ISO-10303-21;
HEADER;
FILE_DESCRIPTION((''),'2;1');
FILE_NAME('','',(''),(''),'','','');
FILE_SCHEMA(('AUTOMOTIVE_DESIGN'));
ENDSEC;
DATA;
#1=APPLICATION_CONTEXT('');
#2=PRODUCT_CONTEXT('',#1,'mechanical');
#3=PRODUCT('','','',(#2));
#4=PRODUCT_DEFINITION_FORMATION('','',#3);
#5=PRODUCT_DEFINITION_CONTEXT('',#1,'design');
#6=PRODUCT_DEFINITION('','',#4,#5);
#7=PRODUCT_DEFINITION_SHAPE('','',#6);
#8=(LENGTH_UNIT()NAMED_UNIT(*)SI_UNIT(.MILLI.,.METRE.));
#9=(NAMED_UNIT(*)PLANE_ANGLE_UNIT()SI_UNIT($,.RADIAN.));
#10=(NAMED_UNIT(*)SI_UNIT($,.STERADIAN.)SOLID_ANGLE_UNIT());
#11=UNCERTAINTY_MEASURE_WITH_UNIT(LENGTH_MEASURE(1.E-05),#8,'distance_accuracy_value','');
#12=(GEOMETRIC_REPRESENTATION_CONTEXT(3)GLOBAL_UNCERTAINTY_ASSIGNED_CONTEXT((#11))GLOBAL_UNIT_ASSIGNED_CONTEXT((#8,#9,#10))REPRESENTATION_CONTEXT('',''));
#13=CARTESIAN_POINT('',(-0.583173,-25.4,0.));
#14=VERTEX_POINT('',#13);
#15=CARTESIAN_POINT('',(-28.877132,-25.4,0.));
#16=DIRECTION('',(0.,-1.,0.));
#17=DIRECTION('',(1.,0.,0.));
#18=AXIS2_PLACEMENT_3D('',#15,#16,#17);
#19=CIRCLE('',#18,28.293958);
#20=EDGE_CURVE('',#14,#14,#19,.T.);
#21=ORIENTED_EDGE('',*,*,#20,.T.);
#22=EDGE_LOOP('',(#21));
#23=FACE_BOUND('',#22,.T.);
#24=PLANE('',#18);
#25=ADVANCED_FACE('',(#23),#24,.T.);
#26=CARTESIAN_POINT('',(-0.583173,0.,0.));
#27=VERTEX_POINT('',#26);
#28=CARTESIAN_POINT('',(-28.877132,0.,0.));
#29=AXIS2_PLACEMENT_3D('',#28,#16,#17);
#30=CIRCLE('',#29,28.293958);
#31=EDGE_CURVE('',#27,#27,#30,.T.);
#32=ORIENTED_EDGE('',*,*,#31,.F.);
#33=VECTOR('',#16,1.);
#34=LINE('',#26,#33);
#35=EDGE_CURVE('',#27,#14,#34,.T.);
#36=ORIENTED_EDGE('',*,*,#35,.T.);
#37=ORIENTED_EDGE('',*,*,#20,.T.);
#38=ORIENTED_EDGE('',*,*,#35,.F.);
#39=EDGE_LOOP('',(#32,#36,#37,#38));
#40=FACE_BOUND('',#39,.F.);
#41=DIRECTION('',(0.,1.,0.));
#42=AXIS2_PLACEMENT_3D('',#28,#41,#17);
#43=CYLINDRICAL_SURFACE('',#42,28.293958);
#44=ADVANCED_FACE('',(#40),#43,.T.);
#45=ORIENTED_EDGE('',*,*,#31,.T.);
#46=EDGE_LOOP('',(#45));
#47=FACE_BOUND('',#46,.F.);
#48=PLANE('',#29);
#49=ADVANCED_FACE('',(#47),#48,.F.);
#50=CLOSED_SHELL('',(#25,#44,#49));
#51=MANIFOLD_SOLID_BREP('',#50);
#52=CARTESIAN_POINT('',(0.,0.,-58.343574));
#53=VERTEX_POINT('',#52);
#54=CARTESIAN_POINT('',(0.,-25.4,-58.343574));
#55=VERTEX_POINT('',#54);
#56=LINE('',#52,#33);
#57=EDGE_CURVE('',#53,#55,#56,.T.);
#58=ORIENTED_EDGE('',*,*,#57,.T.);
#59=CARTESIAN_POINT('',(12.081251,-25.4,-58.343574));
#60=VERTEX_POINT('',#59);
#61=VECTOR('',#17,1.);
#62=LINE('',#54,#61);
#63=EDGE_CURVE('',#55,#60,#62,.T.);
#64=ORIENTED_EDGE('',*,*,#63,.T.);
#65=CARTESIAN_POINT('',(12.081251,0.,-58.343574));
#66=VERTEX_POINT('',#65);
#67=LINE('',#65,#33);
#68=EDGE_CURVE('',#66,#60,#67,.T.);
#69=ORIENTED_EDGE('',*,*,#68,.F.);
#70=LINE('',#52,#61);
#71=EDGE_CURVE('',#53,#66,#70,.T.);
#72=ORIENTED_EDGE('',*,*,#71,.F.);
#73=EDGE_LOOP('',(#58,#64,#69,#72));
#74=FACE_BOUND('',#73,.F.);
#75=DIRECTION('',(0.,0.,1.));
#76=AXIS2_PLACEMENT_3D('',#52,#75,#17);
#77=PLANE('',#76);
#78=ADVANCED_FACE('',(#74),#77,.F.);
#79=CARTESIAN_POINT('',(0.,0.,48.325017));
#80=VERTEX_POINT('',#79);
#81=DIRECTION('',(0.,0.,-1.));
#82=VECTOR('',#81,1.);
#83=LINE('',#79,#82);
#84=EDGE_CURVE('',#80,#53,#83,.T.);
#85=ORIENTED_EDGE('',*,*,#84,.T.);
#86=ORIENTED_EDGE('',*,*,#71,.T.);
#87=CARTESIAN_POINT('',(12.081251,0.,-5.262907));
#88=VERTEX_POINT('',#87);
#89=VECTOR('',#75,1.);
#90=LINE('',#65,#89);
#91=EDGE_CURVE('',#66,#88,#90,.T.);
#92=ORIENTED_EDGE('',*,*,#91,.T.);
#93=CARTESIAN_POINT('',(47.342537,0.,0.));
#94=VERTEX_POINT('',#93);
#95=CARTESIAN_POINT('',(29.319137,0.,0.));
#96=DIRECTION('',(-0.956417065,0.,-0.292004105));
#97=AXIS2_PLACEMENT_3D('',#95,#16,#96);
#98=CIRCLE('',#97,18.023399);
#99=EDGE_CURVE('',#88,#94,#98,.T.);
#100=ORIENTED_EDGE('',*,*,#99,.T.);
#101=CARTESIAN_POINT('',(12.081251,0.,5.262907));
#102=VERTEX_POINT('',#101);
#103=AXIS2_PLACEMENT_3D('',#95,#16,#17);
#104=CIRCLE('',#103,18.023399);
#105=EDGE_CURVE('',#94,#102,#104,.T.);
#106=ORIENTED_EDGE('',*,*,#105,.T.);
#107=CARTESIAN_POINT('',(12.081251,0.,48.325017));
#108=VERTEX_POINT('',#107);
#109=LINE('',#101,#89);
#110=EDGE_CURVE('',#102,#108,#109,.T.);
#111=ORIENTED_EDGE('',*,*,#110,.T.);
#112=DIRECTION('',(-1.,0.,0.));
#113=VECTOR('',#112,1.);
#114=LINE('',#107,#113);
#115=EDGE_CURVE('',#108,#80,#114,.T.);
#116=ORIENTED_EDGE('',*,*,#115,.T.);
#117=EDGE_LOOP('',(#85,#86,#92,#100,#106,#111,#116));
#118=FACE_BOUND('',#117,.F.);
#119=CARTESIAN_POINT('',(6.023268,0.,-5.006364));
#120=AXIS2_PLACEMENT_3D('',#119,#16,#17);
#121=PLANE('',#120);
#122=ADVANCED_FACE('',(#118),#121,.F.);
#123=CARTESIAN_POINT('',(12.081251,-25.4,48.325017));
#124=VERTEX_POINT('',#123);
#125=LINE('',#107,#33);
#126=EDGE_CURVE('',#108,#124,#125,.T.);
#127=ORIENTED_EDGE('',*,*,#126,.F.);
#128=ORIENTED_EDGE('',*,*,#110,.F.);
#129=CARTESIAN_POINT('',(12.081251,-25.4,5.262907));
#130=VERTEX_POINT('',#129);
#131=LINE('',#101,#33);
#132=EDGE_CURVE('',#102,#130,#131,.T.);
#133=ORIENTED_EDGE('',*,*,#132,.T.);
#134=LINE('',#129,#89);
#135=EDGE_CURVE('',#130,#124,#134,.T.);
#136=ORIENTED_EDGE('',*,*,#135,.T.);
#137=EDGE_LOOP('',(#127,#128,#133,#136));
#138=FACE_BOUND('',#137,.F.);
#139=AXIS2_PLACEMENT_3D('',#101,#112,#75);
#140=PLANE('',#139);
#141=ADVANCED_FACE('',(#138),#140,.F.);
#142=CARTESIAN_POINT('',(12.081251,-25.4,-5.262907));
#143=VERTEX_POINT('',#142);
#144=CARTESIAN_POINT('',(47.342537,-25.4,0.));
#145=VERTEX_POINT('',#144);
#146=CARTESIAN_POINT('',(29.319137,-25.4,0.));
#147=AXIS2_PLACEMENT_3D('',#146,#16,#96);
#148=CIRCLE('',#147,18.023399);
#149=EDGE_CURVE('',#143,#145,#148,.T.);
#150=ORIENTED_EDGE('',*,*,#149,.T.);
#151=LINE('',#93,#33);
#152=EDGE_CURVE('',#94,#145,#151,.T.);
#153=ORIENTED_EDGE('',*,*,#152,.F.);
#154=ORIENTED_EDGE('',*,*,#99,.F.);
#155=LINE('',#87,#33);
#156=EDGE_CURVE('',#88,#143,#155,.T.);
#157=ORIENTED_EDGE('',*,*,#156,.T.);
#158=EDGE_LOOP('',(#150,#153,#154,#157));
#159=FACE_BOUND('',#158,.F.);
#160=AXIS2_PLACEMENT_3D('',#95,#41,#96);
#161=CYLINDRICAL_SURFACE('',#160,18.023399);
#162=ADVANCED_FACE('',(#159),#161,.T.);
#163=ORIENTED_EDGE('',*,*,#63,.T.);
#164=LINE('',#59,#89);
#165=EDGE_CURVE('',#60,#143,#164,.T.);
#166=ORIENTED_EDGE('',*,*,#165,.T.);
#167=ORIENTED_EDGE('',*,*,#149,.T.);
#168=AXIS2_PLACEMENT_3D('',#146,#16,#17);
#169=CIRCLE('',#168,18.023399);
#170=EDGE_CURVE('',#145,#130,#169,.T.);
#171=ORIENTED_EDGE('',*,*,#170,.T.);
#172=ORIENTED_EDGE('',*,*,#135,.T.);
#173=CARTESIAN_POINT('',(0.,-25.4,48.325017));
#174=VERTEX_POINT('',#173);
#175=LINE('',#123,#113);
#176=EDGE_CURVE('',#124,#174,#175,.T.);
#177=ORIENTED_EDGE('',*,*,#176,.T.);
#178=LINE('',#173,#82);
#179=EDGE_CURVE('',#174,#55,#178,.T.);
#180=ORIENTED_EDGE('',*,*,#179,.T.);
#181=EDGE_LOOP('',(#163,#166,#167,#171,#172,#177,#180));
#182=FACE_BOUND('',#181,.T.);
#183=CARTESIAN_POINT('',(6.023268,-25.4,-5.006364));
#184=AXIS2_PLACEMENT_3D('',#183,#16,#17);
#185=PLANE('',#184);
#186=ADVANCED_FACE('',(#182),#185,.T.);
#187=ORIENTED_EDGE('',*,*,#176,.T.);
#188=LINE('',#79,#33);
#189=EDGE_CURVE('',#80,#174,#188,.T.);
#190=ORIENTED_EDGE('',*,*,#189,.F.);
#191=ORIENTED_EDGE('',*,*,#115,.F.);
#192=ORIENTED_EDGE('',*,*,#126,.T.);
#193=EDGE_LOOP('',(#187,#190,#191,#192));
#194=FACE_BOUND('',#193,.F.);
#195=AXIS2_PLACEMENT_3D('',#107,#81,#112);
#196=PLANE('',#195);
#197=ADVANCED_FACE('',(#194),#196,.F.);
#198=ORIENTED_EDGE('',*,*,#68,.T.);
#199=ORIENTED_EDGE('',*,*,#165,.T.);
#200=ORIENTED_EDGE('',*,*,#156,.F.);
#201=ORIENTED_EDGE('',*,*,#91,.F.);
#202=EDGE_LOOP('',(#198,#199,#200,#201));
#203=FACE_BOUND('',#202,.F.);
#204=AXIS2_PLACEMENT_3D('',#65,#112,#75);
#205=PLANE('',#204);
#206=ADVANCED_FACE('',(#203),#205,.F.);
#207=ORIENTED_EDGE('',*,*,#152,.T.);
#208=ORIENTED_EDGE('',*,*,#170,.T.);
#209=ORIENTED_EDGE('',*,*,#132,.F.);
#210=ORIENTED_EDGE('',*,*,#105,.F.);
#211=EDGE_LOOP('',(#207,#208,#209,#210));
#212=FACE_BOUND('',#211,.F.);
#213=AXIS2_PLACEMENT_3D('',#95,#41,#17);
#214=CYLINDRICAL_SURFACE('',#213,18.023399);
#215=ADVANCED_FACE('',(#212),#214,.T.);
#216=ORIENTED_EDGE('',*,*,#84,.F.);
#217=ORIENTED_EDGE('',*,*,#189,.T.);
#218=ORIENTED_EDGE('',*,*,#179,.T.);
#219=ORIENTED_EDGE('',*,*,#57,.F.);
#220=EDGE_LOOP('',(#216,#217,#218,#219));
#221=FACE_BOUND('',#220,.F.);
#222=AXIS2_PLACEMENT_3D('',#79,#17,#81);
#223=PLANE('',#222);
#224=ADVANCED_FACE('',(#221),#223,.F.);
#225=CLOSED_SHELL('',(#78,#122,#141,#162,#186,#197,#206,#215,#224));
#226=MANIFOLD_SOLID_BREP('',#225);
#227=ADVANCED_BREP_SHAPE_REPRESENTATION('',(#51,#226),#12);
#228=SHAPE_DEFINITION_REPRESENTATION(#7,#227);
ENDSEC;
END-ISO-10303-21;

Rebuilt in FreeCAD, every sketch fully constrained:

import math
import FreeCAD as App
import Part
import Sketcher
Q = App.Units.Quantity

doc = App.newDocument("Part")
body = doc.addObject("PartDesign::Body", "Body")

# Sketch on XZ plane
sketch1 = doc.addObject("Sketcher::SketchObject", "Sketch")
body.addObject(sketch1)
sketch1.AttachmentSupport = (doc.XZ_Plane, [""])
sketch1.MapMode = "FlatFace"
sketch1.addGeometry(Part.LineSegment(App.Vector(12.081251, 48.325017, 0), App.Vector(0, 48.325017, 0)), False)
sketch1.addGeometry(Part.LineSegment(App.Vector(0, 48.325017, 0), App.Vector(0, -58.343574, 0)), False)
sketch1.addGeometry(Part.LineSegment(App.Vector(0, -58.343574, 0), App.Vector(12.081251, -58.343574, 0)), False)
sketch1.addGeometry(Part.LineSegment(App.Vector(12.081251, -58.343574, 0), App.Vector(12.081251, -5.262907, 0)), False)
sketch1.addGeometry(Part.ArcOfCircle(Part.Circle(App.Vector(29.319137, 0, 0), App.Vector(0, 0, 1), 18.023399), math.radians(-163.022023), math.radians(0)), False)
sketch1.addGeometry(Part.ArcOfCircle(Part.Circle(App.Vector(29.319137, 0, 0), App.Vector(0, 0, 1), 18.023399), math.radians(0), math.radians(163.022023)), False)
sketch1.addGeometry(Part.LineSegment(App.Vector(12.081251, 5.262907, 0), App.Vector(12.081251, 48.325017, 0)), False)
sketch1.addConstraint(Sketcher.Constraint("Coincident", 0, 2, 1, 1))
sketch1.addConstraint(Sketcher.Constraint("Coincident", 1, 2, 2, 1))
sketch1.addConstraint(Sketcher.Constraint("Coincident", 2, 2, 3, 1))
sketch1.addConstraint(Sketcher.Constraint("Coincident", 3, 2, 4, 1))
sketch1.addConstraint(Sketcher.Constraint("Tangent", 4, 2, 5, 1))
sketch1.addConstraint(Sketcher.Constraint("Coincident", 5, 2, 6, 1))
sketch1.addConstraint(Sketcher.Constraint("Coincident", 6, 2, 0, 1))
sketch1.addConstraint(Sketcher.Constraint("Horizontal", 0))
sketch1.addConstraint(Sketcher.Constraint("Vertical", 1))
sketch1.addConstraint(Sketcher.Constraint("Horizontal", 2))
sketch1.addConstraint(Sketcher.Constraint("Vertical", 3))
sketch1.addConstraint(Sketcher.Constraint("Vertical", 6))
sketch1.addConstraint(Sketcher.Constraint("Equal", 4, 5))
sketch1.addConstraint(Sketcher.Constraint("Symmetric", 3, 2, 5, 2, -1))
sketch1.addConstraint(Sketcher.Constraint("PointOnObject", 0, 2, -2))
sketch1.addConstraint(Sketcher.Constraint("PointOnObject", 4, 2, -1))
sketch1.addConstraint(Sketcher.Constraint("Radius", 4, 18.023399))
sketch1.addConstraint(Sketcher.Constraint("DistanceX", 0, 2, 0, 1, 12.081251))
sketch1.addConstraint(Sketcher.Constraint("DistanceY", 1, 2, 1, 1, 106.668591))
sketch1.addConstraint(Sketcher.Constraint("DistanceY", 6, 1, 6, 2, 43.06211))
sketch1.addConstraint(Sketcher.Constraint("DistanceY", 3, 1, 3, 2, 53.080668))
pad1 = doc.addObject("PartDesign::Pad", "Pad")
body.addObject(pad1)
pad1.Profile = sketch1
pad1.Length = Q("1 in")
body2 = doc.addObject("PartDesign::Body", "Body001")

# Sketch on XZ plane
sketch2 = doc.addObject("Sketcher::SketchObject", "Sketch001")
body2.addObject(sketch2)
sketch2.AttachmentSupport = (doc.getObject("XZ_Plane001"), [""])
sketch2.MapMode = "FlatFace"
sketch2.addGeometry(Part.Circle(App.Vector(-28.877132, 0, 0), App.Vector(0, 0, 1), 28.293958), False)
sketch2.addConstraint(Sketcher.Constraint("PointOnObject", 0, 3, -1))
sketch2.addConstraint(Sketcher.Constraint("Diameter", 0, 56.587917))
sketch2.addConstraint(Sketcher.Constraint("DistanceX", 0, 3, -1, 1, 28.877132))
pad2 = doc.addObject("PartDesign::Pad", "Pad001")
body2.addObject(pad2)
pad2.Profile = sketch2
pad2.Length = Q("1 in")

doc.recompute()
